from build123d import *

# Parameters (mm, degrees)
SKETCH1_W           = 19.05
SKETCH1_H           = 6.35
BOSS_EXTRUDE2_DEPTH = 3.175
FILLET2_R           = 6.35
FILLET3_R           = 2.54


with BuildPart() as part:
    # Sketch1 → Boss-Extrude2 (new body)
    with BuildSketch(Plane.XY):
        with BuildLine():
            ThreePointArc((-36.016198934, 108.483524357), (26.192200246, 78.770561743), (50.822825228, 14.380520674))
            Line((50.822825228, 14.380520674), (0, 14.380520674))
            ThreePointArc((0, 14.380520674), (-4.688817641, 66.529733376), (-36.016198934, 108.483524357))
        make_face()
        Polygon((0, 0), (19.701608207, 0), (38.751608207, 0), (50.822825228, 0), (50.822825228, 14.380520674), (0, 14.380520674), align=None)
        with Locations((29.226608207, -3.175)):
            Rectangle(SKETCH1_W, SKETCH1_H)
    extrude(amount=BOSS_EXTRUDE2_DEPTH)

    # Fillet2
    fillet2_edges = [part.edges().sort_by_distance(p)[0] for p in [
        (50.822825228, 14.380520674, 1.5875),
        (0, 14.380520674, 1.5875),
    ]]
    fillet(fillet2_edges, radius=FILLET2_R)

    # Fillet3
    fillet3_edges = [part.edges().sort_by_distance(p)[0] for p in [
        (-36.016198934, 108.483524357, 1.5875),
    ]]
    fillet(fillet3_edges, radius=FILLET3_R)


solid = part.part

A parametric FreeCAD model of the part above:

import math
import FreeCAD as App
import Part
import Sketcher

V = App.Vector
Q = App.Units.Quantity


def edges_at(feature, points):
    """Names of the edges that pass closest to the given points."""
    edges = feature.Shape.Edges
    near = lambda p: min(range(len(edges)), key=lambda i: edges[i].distToShape(Part.Vertex(*p))[0])
    return sorted({f"Edge{near(p) + 1}" for p in points})

doc = App.newDocument("Part")
params = doc.addObject("Spreadsheet::Sheet", "Params")
for row, (alias, value) in enumerate([
    ("sketch1_width", "0.75 in"),
    ("sketch1_height", "0.25 in"),
    ("pad1_length", "0.125 in"),
    ("fillet_radius", "0.25 in"),
    ("fillet2_radius", "0.1 in"),
], start=1):
    params.set(f"A{row}", alias)
    params.set(f"B{row}", "=" + value)
    params.setAlias(f"B{row}", alias)

body = doc.addObject("PartDesign::Body", "Body")

sketch1 = doc.addObject("Sketcher::SketchObject", "Sketch")
body.addObject(sketch1)
sketch1.AttachmentSupport = (doc.XY_Plane, [""])
sketch1.MapMode = "FlatFace"
sketch1.addGeometry([
    Part.ArcOfCircle(Part.Circle(V(-42, 16, 0), V(0, 0, 1), 93), math.radians(-1), math.radians(86)),
    Part.ArcOfCircle(Part.Circle(V(-94, 32, 0), V(0, 0, 1), 96), math.radians(-11), math.radians(53)),
    Part.LineSegment(V(0, 14, 0), V(0, 0, 0)),
    Part.LineSegment(V(0, 0, 0), V(20, 0, 0)),
    Part.LineSegment(V(20, 0, 0), V(20, -6, 0)),
    Part.LineSegment(V(20, -6, 0), V(39, -6, 0)),
    Part.LineSegment(V(39, -6, 0), V(39, 0, 0)),
    Part.LineSegment(V(39, 0, 0), V(51, 0, 0)),
    Part.LineSegment(V(51, 0, 0), V(51, 14, 0)),
], False)
sketch1.addConstraint([
    Sketcher.Constraint("Coincident", 0, 2, 1, 2),
    Sketcher.Constraint("Coincident", 1, 1, 2, 1),
    Sketcher.Constraint("Coincident", 2, 2, 3, 1),
    Sketcher.Constraint("Coincident", 3, 2, 4, 1),
    Sketcher.Constraint("Coincident", 4, 2, 5, 1),
    Sketcher.Constraint("Coincident", 5, 2, 6, 1),
    Sketcher.Constraint("Coincident", 6, 2, 7, 1),
    Sketcher.Constraint("Coincident", 7, 2, 8, 1),
    Sketcher.Constraint("Coincident", 8, 2, 0, 1),
    Sketcher.Constraint("Vertical", 2),
    Sketcher.Constraint("Horizontal", 3),
    Sketcher.Constraint("Vertical", 4),
    Sketcher.Constraint("Horizontal", 5),
    Sketcher.Constraint("Vertical", 6),
    Sketcher.Constraint("Horizontal", 7),
    Sketcher.Constraint("Vertical", 8),
    Sketcher.Constraint("Coincident", 2, 2, -1, 1),
    Sketcher.Constraint("PointOnObject", 6, 2, -1),
    Sketcher.Constraint("Horizontal", 1, 1, 8, 2),
    Sketcher.Constraint("DistanceX", 5, 1, 5, 2, Q("0.75 in")),
    Sketcher.Constraint("DistanceY", 4, 2, 4, 1, Q("0.25 in")),
    Sketcher.Constraint("Radius", 0, Q("92.948592 mm")),
    Sketcher.Constraint("Radius", 1, Q("96.116414 mm")),
    Sketcher.Constraint("DistanceX", 3, 1, 3, 2, Q("19.701608 mm")),
    Sketcher.Constraint("DistanceY", 2, 2, 2, 1, Q("14.380521 mm")),
    Sketcher.Constraint("DistanceX", 0, 2, -1, 1, Q("36.016199 mm")),
    Sketcher.Constraint("DistanceX", 0, 3, 3, 2, Q("61.817501 mm")),
    Sketcher.Constraint("DistanceX", 7, 1, 7, 2, Q("12.071217 mm")),
])
sketch1.setExpression("Constraints[19]", "Params.sketch1_width")
sketch1.setExpression("Constraints[20]", "Params.sketch1_height")
pad1 = doc.addObject("PartDesign::Pad", "Pad")
body.addObject(pad1)
pad1.Profile = sketch1
pad1.setExpression("Length", "Params.pad1_length")
doc.recompute()

fillet = doc.addObject("PartDesign::Fillet", "Fillet")
body.addObject(fillet)
fillet.Base = (pad1, edges_at(pad1, [(50.823, 14.381, 1.587), (0, 14.381, 1.587)]))
fillet.setExpression("Radius", "Params.fillet_radius")
doc.recompute()

fillet2 = doc.addObject("PartDesign::Fillet", "Fillet001")
body.addObject(fillet2)
fillet2.Base = (fillet, edges_at(fillet, [(-36.016, 108.484, 1.587)]))
fillet2.setExpression("Radius", "Params.fillet2_radius")

doc.recompute()
